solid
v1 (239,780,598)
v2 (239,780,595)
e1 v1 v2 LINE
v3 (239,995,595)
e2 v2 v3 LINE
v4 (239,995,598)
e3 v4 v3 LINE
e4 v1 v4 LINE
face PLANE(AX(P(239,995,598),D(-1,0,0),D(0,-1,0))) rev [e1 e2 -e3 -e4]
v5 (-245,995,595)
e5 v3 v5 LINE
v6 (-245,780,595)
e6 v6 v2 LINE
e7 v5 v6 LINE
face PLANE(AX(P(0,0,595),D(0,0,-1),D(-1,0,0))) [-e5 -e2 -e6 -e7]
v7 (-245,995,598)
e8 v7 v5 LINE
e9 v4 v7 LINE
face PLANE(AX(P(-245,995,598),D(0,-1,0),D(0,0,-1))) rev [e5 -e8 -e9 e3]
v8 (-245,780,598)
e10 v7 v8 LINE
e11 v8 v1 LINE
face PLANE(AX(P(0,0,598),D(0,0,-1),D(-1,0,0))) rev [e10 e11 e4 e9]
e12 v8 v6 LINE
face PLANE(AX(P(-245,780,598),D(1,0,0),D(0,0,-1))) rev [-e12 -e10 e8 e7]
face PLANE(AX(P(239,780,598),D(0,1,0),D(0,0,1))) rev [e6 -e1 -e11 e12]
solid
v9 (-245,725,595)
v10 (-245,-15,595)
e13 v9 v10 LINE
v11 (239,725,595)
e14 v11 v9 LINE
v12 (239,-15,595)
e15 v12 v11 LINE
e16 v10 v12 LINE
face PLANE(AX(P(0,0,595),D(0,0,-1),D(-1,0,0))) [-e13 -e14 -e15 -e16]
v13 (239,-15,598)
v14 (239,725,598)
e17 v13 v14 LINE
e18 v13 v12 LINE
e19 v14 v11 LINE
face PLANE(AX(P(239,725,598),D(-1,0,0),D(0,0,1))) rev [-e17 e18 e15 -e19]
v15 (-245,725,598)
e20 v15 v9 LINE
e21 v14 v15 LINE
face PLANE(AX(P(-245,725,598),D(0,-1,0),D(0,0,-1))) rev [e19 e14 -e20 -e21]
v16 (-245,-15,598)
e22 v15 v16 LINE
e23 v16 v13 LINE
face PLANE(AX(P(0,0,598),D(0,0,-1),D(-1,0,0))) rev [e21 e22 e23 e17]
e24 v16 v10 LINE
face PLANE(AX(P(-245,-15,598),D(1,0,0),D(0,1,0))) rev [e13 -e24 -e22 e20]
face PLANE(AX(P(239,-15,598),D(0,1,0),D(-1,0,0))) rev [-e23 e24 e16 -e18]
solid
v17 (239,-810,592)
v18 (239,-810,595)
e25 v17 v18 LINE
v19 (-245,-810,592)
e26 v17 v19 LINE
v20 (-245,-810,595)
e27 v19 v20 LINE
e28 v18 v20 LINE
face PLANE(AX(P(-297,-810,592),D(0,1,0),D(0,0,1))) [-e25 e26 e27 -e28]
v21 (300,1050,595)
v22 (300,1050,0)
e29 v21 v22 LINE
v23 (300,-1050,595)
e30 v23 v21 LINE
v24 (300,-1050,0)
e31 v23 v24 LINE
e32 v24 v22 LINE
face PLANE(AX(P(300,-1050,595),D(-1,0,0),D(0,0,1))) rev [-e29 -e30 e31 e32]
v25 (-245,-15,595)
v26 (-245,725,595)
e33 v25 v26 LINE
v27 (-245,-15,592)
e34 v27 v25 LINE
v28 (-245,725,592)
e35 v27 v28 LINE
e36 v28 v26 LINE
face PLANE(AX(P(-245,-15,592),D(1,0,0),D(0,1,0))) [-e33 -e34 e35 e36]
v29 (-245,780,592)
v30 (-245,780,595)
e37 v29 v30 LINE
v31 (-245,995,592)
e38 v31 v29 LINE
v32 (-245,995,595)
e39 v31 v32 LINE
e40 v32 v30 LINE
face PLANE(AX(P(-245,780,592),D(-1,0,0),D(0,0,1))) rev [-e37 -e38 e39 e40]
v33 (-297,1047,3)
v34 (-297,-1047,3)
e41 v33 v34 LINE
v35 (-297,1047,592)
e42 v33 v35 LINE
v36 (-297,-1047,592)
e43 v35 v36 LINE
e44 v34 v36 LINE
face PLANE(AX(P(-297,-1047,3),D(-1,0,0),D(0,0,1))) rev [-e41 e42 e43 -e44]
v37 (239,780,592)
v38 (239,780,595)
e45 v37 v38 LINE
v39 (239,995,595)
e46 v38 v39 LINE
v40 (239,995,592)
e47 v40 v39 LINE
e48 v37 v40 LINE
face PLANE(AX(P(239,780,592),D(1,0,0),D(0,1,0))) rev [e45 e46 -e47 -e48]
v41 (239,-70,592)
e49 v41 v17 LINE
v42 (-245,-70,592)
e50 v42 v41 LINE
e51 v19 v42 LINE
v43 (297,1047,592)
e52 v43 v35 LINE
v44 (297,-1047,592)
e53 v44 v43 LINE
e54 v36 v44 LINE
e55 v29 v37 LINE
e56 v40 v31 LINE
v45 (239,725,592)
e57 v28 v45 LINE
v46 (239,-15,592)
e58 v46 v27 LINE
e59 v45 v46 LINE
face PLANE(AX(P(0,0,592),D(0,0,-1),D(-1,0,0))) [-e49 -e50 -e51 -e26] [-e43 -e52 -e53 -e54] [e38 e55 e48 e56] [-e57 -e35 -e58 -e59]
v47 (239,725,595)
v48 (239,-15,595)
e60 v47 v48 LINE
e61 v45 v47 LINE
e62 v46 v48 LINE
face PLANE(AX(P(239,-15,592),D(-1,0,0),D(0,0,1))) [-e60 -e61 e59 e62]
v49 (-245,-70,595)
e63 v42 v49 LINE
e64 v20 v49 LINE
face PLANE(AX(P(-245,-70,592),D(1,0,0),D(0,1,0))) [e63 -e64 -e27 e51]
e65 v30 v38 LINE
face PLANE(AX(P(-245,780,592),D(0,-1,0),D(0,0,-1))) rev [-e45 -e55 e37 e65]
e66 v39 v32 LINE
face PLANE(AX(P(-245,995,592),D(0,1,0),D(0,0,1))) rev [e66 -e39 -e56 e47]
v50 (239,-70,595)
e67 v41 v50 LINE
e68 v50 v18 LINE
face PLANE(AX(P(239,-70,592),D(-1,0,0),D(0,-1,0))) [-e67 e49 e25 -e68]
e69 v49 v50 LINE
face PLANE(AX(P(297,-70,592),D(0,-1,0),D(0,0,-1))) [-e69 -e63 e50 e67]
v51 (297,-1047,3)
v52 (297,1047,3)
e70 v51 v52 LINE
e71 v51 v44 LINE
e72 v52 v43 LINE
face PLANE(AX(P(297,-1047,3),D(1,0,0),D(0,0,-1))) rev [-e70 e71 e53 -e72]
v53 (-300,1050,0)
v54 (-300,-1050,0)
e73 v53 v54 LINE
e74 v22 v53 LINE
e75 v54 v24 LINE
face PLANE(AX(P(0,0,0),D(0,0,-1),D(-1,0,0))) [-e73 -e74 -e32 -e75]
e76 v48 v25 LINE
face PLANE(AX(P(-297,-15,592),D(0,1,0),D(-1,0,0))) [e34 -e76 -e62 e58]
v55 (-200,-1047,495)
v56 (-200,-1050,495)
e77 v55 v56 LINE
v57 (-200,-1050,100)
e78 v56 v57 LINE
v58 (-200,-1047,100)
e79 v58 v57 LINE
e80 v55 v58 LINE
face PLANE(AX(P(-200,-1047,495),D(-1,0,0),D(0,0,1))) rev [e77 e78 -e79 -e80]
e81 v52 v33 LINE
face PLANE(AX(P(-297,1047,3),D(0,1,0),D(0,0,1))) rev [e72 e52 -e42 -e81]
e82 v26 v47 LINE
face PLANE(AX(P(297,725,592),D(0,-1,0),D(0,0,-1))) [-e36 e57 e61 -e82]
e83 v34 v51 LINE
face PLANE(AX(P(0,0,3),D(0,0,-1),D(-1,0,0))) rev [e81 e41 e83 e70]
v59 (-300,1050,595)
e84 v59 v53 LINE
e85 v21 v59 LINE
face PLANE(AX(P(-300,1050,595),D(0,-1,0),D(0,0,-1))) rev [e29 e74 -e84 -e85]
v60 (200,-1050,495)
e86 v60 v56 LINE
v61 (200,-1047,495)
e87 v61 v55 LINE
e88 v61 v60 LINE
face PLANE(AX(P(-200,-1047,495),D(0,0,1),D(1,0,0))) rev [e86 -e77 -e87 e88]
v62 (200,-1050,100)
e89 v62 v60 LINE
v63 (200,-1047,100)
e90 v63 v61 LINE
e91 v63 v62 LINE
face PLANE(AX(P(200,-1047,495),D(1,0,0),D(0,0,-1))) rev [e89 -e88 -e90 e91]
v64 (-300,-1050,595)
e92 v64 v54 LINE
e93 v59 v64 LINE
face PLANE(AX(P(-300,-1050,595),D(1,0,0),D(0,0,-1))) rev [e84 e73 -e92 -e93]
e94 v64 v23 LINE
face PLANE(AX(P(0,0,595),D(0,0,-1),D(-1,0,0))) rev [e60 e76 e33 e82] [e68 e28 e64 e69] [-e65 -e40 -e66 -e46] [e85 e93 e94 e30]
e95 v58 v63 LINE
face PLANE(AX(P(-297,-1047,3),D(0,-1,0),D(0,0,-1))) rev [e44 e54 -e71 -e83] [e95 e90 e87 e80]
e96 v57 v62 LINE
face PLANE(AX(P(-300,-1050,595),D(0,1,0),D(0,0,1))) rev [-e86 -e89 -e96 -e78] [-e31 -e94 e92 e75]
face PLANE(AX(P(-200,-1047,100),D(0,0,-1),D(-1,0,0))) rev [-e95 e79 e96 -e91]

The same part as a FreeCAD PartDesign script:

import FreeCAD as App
import Part
import Sketcher

V = App.Vector


def add_polygon(sketch, points):
    """Adds a closed chain of lines whose ends are joined by coincident constraints."""
    first, n = sketch.GeometryCount, len(points)
    for a, b in zip(points, points[1:] + points[:1]):
        sketch.addGeometry(Part.LineSegment(App.Vector(*a, 0), App.Vector(*b, 0)), False)
    for i in range(n):
        sketch.addConstraint(Sketcher.Constraint("Coincident", first + i, 2, first + (i + 1) % n, 1))

doc = App.newDocument("Part")
body = doc.addObject("PartDesign::Body", "Body")

# Sketch on XY plane
sketch1 = doc.addObject("Sketcher::SketchObject", "Sketch")
body.addObject(sketch1)
sketch1.AttachmentSupport = (doc.XY_Plane, [""])
sketch1.MapMode = "FlatFace"
add_polygon(sketch1, [(-300, 1050), (-300, -1050), (300, -1050), (300, 1050)])  # lines 0-3
sketch1.addConstraint(Sketcher.Constraint("Vertical", 0))
sketch1.addConstraint(Sketcher.Constraint("Horizontal", 1))
sketch1.addConstraint(Sketcher.Constraint("Vertical", 2))
sketch1.addConstraint(Sketcher.Constraint("Horizontal", 3))
sketch1.addConstraint(Sketcher.Constraint("Symmetric", 0, 2, 2, 2, -1, 1))
sketch1.addConstraint(Sketcher.Constraint("DistanceX", 1, 1, 1, 2, 600.0))
sketch1.addConstraint(Sketcher.Constraint("DistanceY", 0, 2, 0, 1, 2100.0))
pad1 = doc.addObject("PartDesign::Pad", "Pad")
body.addObject(pad1)
pad1.Profile = sketch1
pad1.Length = 595

# Sketch on XY plane
sketch2 = doc.addObject("Sketcher::SketchObject", "Sketch001")
body.addObject(sketch2)
sketch2.AttachmentSupport = (doc.XY_Plane, [""])
sketch2.MapMode = "FlatFace"
sketch2.AttachmentOffset = App.Placement(V(0, 0, 595), App.Rotation())
add_polygon(sketch2, [(-297, 1047), (-297, -1047), (297, -1047), (297, 1047)])  # lines 0-3
sketch2.addConstraint(Sketcher.Constraint("Vertical", 0))
sketch2.addConstraint(Sketcher.Constraint("Horizontal", 1))
sketch2.addConstraint(Sketcher.Constraint("Vertical", 2))
sketch2.addConstraint(Sketcher.Constraint("Horizontal", 3))
sketch2.addConstraint(Sketcher.Constraint("Symmetric", 0, 2, 2, 2, -1, 1))
sketch2.addConstraint(Sketcher.Constraint("DistanceX", 1, 1, 1, 2, 594.0))
sketch2.addConstraint(Sketcher.Constraint("DistanceY", 0, 2, 0, 1, 2094.0))
pocket1 = doc.addObject("PartDesign::Pocket", "Pocket")
body.addObject(pocket1)
pocket1.Profile = sketch2
pocket1.Length = 592

# Sketch on XY plane
sketch3 = doc.addObject("Sketcher::SketchObject", "Sketch002")
body.addObject(sketch3)
sketch3.AttachmentSupport = (doc.XY_Plane, [""])
sketch3.MapMode = "FlatFace"
sketch3.AttachmentOffset = App.Placement(V(0, 0, 595), App.Rotation())
add_polygon(sketch3, [(-297, -810), (-297, -1047), (297, -1047), (297, -810)])  # lines 0-3
sketch3.addConstraint(Sketcher.Constraint("Vertical", 0))
sketch3.addConstraint(Sketcher.Constraint("Horizontal", 1))
sketch3.addConstraint(Sketcher.Constraint("Vertical", 2))
sketch3.addConstraint(Sketcher.Constraint("Horizontal", 3))
sketch3.addConstraint(Sketcher.Constraint("DistanceX", 1, 1, 1, 2, 594.0))
sketch3.addConstraint(Sketcher.Constraint("DistanceY", 0, 2, 0, 1, 237.0))
sketch3.addConstraint(Sketcher.Constraint("DistanceX", 0, 2, -1, 1, 297.0))
sketch3.addConstraint(Sketcher.Constraint("DistanceY", 0, 2, -1, 1, 1047.0))
pad2 = doc.addObject("PartDesign::Pad", "Pad001")
body.addObject(pad2)
pad2.Profile = sketch3
pad2.Length = 3
pad2.Reversed = True

# Sketch on XZ plane
sketch4 = doc.addObject("Sketcher::SketchObject", "Sketch003")
body.addObject(sketch4)
sketch4.AttachmentSupport = (doc.XZ_Plane, [""])
sketch4.MapMode = "FlatFace"
sketch4.AttachmentOffset = App.Placement(V(0, 0, 1050), App.Rotation())
add_polygon(sketch4, [(-200, 495), (-200, 100), (200, 100), (200, 495)])  # lines 0-3
sketch4.addConstraint(Sketcher.Constraint("Vertical", 0))
sketch4.addConstraint(Sketcher.Constraint("Horizontal", 1))
sketch4.addConstraint(Sketcher.Constraint("Vertical", 2))
sketch4.addConstraint(Sketcher.Constraint("Horizontal", 3))
sketch4.addConstraint(Sketcher.Constraint("DistanceX", 1, 1, 1, 2, 400.0))
sketch4.addConstraint(Sketcher.Constraint("DistanceY", 0, 2, 0, 1, 395.0))
sketch4.addConstraint(Sketcher.Constraint("DistanceX", 0, 2, -1, 1, 200.0))
sketch4.addConstraint(Sketcher.Constraint("DistanceY", -1, 1, 0, 2, 100.0))
pocket2 = doc.addObject("PartDesign::Pocket", "Pocket001")
body.addObject(pocket2)
pocket2.Profile = sketch4
pocket2.Length = 3
body2 = doc.addObject("PartDesign::Body", "Body001")

# Sketch on XY plane
sketch5 = doc.addObject("Sketcher::SketchObject", "Sketch004")
body2.addObject(sketch5)
sketch5.AttachmentSupport = (doc.getObject("XY_Plane001"), [""])
sketch5.MapMode = "FlatFace"
sketch5.AttachmentOffset = App.Placement(V(0, 0, 595), App.Rotation())
add_polygon(sketch5, [(-297, -70), (-297, -810), (-245, -810), (-245, -70)])  # lines 0-3
sketch5.addConstraint(Sketcher.Constraint("Vertical", 0))
sketch5.addConstraint(Sketcher.Constraint("Horizontal", 1))
sketch5.addConstraint(Sketcher.Constraint("Vertical", 2))
sketch5.addConstraint(Sketcher.Constraint("Horizontal", 3))
sketch5.addConstraint(Sketcher.Constraint("DistanceX", 1, 1, 1, 2, 52.0))
sketch5.addConstraint(Sketcher.Constraint("DistanceY", 0, 2, 0, 1, 740.0))
sketch5.addConstraint(Sketcher.Constraint("DistanceX", 0, 2, -1, 1, 297.0))
sketch5.addConstraint(Sketcher.Constraint("DistanceY", 0, 2, -1, 1, 810.0))
pad3 = doc.addObject("PartDesign::Pad", "Pad002")
body2.addObject(pad3)
pad3.Profile = sketch5
pad3.Length = 3
pad3.Reversed = True
body3 = doc.addObject("PartDesign::Body", "Body002")

# Sketch on XY plane
sketch6 = doc.addObject("Sketcher::SketchObject", "Sketch005")
body3.addObject(sketch6)
sketch6.AttachmentSupport = (doc.getObject("XY_Plane002"), [""])
sketch6.MapMode = "FlatFace"
sketch6.AttachmentOffset = App.Placement(V(0, 0, 595), App.Rotation())
add_polygon(sketch6, [(239, -70), (239, -810), (297, -810), (297, -70)])  # lines 0-3
sketch6.addConstraint(Sketcher.Constraint("Vertical", 0))
sketch6.addConstraint(Sketcher.Constraint("Horizontal", 1))
sketch6.addConstraint(Sketcher.Constraint("Vertical", 2))
sketch6.addConstraint(Sketcher.Constraint("Horizontal", 3))
sketch6.addConstraint(Sketcher.Constraint("DistanceX", 1, 1, 1, 2, 58.0))
sketch6.addConstraint(Sketcher.Constraint("DistanceY", 0, 2, 0, 1, 740.0))
sketch6.addConstraint(Sketcher.Constraint("DistanceX", -1, 1, 0, 2, 239.0))
sketch6.addConstraint(Sketcher.Constraint("DistanceY", 0, 2, -1, 1, 810.0))
pad4 = doc.addObject("PartDesign::Pad", "Pad003")
body3.addObject(pad4)
pad4.Profile = sketch6
pad4.Length = 3
pad4.Reversed = True
body.AllowCompound = True
doc.recompute()

boolean = doc.addObject("PartDesign::Boolean", "Boolean")
body.addObject(boolean)
boolean.Type = "Fuse"
boolean.addObjects([body2])
doc.recompute()

boolean2 = doc.addObject("PartDesign::Boolean", "Boolean001")
body.addObject(boolean2)
boolean2.Type = "Fuse"
boolean2.addObjects([body3])

# Sketch on XY plane
sketch7 = doc.addObject("Sketcher::SketchObject", "Sketch006")
body.addObject(sketch7)
sketch7.AttachmentSupport = (doc.XY_Plane, [""])
sketch7.MapMode = "FlatFace"
sketch7.AttachmentOffset = App.Placement(V(0, 0, 595), App.Rotation())
add_polygon(sketch7, [(-245, -70), (-245, -810), (239, -810), (239, -70)])  # lines 0-3
sketch7.addConstraint(Sketcher.Constraint("Vertical", 0))
sketch7.addConstraint(Sketcher.Constraint("Horizontal", 1))
sketch7.addConstraint(Sketcher.Constraint("Vertical", 2))
sketch7.addConstraint(Sketcher.Constraint("Horizontal", 3))
sketch7.addConstraint(Sketcher.Constraint("DistanceX", 1, 1, 1, 2, 484.0))
sketch7.addConstraint(Sketcher.Constraint("DistanceY", 0, 2, 0, 1, 740.0))
sketch7.addConstraint(Sketcher.Constraint("DistanceX", 0, 2, -1, 1, 245.0))
sketch7.addConstraint(Sketcher.Constraint("DistanceY", 0, 2, -1, 1, 810.0))
pad5 = doc.addObject("PartDesign::Pad", "Pad004")
body.addObject(pad5)
pad5.Profile = sketch7
pad5.Length = 3

# Sketch on XY plane
sketch8 = doc.addObject("Sketcher::SketchObject", "Sketch007")
body.addObject(sketch8)
sketch8.AttachmentSupport = (doc.XY_Plane, [""])
sketch8.MapMode = "FlatFace"
sketch8.AttachmentOffset = App.Placement(V(0, 0, 595), App.Rotation())
add_polygon(sketch8, [(-297, -15), (-297, -70), (297, -70), (297, -15)])  # lines 0-3
sketch8.addConstraint(Sketcher.Constraint("Vertical", 0))
sketch8.addConstraint(Sketcher.Constraint("Horizontal", 1))
sketch8.addConstraint(Sketcher.Constraint("Vertical", 2))
sketch8.addConstraint(Sketcher.Constraint("Horizontal", 3))
sketch8.addConstraint(Sketcher.Constraint("DistanceX", 1, 1, 1, 2, 594.0))
sketch8.addConstraint(Sketcher.Constraint("DistanceY", 0, 2, 0, 1, 55.0))
sketch8.addConstraint(Sketcher.Constraint("DistanceX", 0, 2, -1, 1, 297.0))
sketch8.addConstraint(Sketcher.Constraint("DistanceY", 0, 2, -1, 1, 70.0))
pad6 = doc.addObject("PartDesign::Pad", "Pad005")
body.addObject(pad6)
pad6.Profile = sketch8
pad6.Length = 3
pad6.Reversed = True

# Sketch on XY plane
sketch9 = doc.addObject("Sketcher::SketchObject", "Sketch008")
body.addObject(sketch9)
sketch9.AttachmentSupport = (doc.XY_Plane, [""])
sketch9.MapMode = "FlatFace"
sketch9.AttachmentOffset = App.Placement(V(0, 0, 595), App.Rotation())
add_polygon(sketch9, [(-297, 725), (-297, -15), (-245, -15), (-245, 725)])  # lines 0-3
add_polygon(sketch9, [(239, 725), (239, -15), (297, -15), (297, 725)])  # lines 4-7
sketch9.addConstraint(Sketcher.Constraint("Vertical", 0))
sketch9.addConstraint(Sketcher.Constraint("Horizontal", 1))
sketch9.addConstraint(Sketcher.Constraint("Vertical", 2))
sketch9.addConstraint(Sketcher.Constraint("Horizontal", 3))
sketch9.addConstraint(Sketcher.Constraint("Vertical", 4))
sketch9.addConstraint(Sketcher.Constraint("Horizontal", 5))
sketch9.addConstraint(Sketcher.Constraint("Vertical", 6))
sketch9.addConstraint(Sketcher.Constraint("Horizontal", 7))
sketch9.addConstraint(Sketcher.Constraint("Symmetric", 0, 2, 5, 2, -2))
sketch9.addConstraint(Sketcher.Constraint("Horizontal", 3, 2, 6, 2))
sketch9.addConstraint(Sketcher.Constraint("DistanceX", 1, 1, 1, 2, 52.0))
sketch9.addConstraint(Sketcher.Constraint("DistanceX", 5, 1, 5, 2, 58.0))
sketch9.addConstraint(Sketcher.Constraint("DistanceY", 0, 2, 0, 1, 740.0))
sketch9.addConstraint(Sketcher.Constraint("DistanceX", 0, 2, -1, 1, 297.0))
sketch9.addConstraint(Sketcher.Constraint("DistanceY", 0, 2, -1, 1, 15.0))
pad7 = doc.addObject("PartDesign::Pad", "Pad006")
body.addObject(pad7)
pad7.Profile = sketch9
pad7.Length = 3
pad7.Reversed = True
body4 = doc.addObject("PartDesign::Body", "Body003")

# Sketch on XY plane
sketch10 = doc.addObject("Sketcher::SketchObject", "Sketch009")
body4.addObject(sketch10)
sketch10.AttachmentSupport = (doc.getObject("XY_Plane003"), [""])
sketch10.MapMode = "FlatFace"
sketch10.AttachmentOffset = App.Placement(V(0, 0, 595), App.Rotation())
add_polygon(sketch10, [(-245, 725), (-245, -15), (239, -15), (239, 725)])  # lines 0-3
sketch10.addConstraint(Sketcher.Constraint("Vertical", 0))
sketch10.addConstraint(Sketcher.Constraint("Horizontal", 1))
sketch10.addConstraint(Sketcher.Constraint("Vertical", 2))
sketch10.addConstraint(Sketcher.Constraint("Horizontal", 3))
sketch10.addConstraint(Sketcher.Constraint("DistanceX", 1, 1, 1, 2, 484.0))
sketch10.addConstraint(Sketcher.Constraint("DistanceY", 0, 2, 0, 1, 740.0))
sketch10.addConstraint(Sketcher.Constraint("DistanceX", 0, 2, -1, 1, 245.0))
sketch10.addConstraint(Sketcher.Constraint("DistanceY", 0, 2, -1, 1, 15.0))
pad8 = doc.addObject("PartDesign::Pad", "Pad007")
body4.addObject(pad8)
pad8.Profile = sketch10
pad8.Length = 3
body.AllowCompound = True
doc.recompute()

boolean3 = doc.addObject("PartDesign::Boolean", "Boolean002")
body.addObject(boolean3)
boolean3.Type = "Fuse"
boolean3.addObjects([body4])

# Sketch on XY plane
sketch11 = doc.addObject("Sketcher::SketchObject", "Sketch010")
body.addObject(sketch11)
sketch11.AttachmentSupport = (doc.XY_Plane, [""])
sketch11.MapMode = "FlatFace"
sketch11.AttachmentOffset = App.Placement(V(0, 0, 595), App.Rotation())
add_polygon(sketch11, [(-297, 1047), (-297, 725), (297, 725), (297, 1047)])  # lines 0-3
add_polygon(sketch11, [(239, 780), (-245, 780), (-245, 995), (239, 995)])  # lines 4-7
sketch11.addConstraint(Sketcher.Constraint("Vertical", 0))
sketch11.addConstraint(Sketcher.Constraint("Horizontal", 1))
sketch11.addConstraint(Sketcher.Constraint("Vertical", 2))
sketch11.addConstraint(Sketcher.Constraint("Horizontal", 3))
sketch11.addConstraint(Sketcher.Constraint("Horizontal", 4))
sketch11.addConstraint(Sketcher.Constraint("Vertical", 5))
sketch11.addConstraint(Sketcher.Constraint("Horizontal", 6))
sketch11.addConstraint(Sketcher.Constraint("Vertical", 7))
sketch11.addConstraint(Sketcher.Constraint("DistanceX", 1, 1, 1, 2, 594.0))
sketch11.addConstraint(Sketcher.Constraint("DistanceX", 4, 2, 4, 1, 484.0))
sketch11.addConstraint(Sketcher.Constraint("DistanceY", 0, 2, 0, 1, 322.0))
sketch11.addConstraint(Sketcher.Constraint("DistanceY", 5, 1, 5, 2, 215.0))
sketch11.addConstraint(Sketcher.Constraint("DistanceX", 0, 2, -1, 1, 297.0))
sketch11.addConstraint(Sketcher.Constraint("DistanceY", -1, 1, 0, 2, 725.0))
sketch11.addConstraint(Sketcher.Constraint("DistanceX", 4, 2, -1, 1, 245.0))
sketch11.addConstraint(Sketcher.Constraint("DistanceY", -1, 1, 4, 2, 780.0))
pad9 = doc.addObject("PartDesign::Pad", "Pad008")
body.addObject(pad9)
pad9.Profile = sketch11
pad9.Length = 3
pad9.Reversed = True

# Sketch on XY plane
sketch12 = doc.addObject("Sketcher::SketchObject", "Sketch011")
body.addObject(sketch12)
sketch12.AttachmentSupport = (doc.XY_Plane, [""])
sketch12.MapMode = "FlatFace"
sketch12.AttachmentOffset = App.Placement(V(0, 0, 598), App.Rotation())
add_polygon(sketch12, [(-245, -70), (-245, -810), (239, -810), (239, -70)])  # lines 0-3
sketch12.addConstraint(Sketcher.Constraint("Vertical", 0))
sketch12.addConstraint(Sketcher.Constraint("Horizontal", 1))
sketch12.addConstraint(Sketcher.Constraint("Vertical", 2))
sketch12.addConstraint(Sketcher.Constraint("Horizontal", 3))
sketch12.addConstraint(Sketcher.Constraint("DistanceX", 1, 1, 1, 2, 484.0))
sketch12.addConstraint(Sketcher.Constraint("DistanceY", 0, 2, 0, 1, 740.0))
sketch12.addConstraint(Sketcher.Constraint("DistanceX", 0, 2, -1, 1, 245.0))
sketch12.addConstraint(Sketcher.Constraint("DistanceY", 0, 2, -1, 1, 810.0))
pocket3 = doc.addObject("PartDesign::Pocket", "Pocket002")
body.addObject(pocket3)
pocket3.Profile = sketch12
pocket3.Length = 4
body5 = doc.addObject("PartDesign::Body", "Body004")

# Sketch on XY plane
sketch13 = doc.addObject("Sketcher::SketchObject", "Sketch012")
body5.addObject(sketch13)
sketch13.AttachmentSupport = (doc.getObject("XY_Plane004"), [""])
sketch13.MapMode = "FlatFace"
sketch13.AttachmentOffset = App.Placement(V(0, 0, 595), App.Rotation())
add_polygon(sketch13, [(-245, 995), (-245, 780), (239, 780), (239, 995)])  # lines 0-3
sketch13.addConstraint(Sketcher.Constraint("Vertical", 0))
sketch13.addConstraint(Sketcher.Constraint("Horizontal", 1))
sketch13.addConstraint(Sketcher.Constraint("Vertical", 2))
sketch13.addConstraint(Sketcher.Constraint("Horizontal", 3))
sketch13.addConstraint(Sketcher.Constraint("DistanceX", 1, 1, 1, 2, 484.0))
sketch13.addConstraint(Sketcher.Constraint("DistanceY", 0, 2, 0, 1, 215.0))
sketch13.addConstraint(Sketcher.Constraint("DistanceX", 0, 2, -1, 1, 245.0))
sketch13.addConstraint(Sketcher.Constraint("DistanceY", -1, 1, 0, 2, 780.0))
pad10 = doc.addObject("PartDesign::Pad", "Pad009")
body5.addObject(pad10)
pad10.Profile = sketch13
pad10.Length = 3

doc.recompute()
